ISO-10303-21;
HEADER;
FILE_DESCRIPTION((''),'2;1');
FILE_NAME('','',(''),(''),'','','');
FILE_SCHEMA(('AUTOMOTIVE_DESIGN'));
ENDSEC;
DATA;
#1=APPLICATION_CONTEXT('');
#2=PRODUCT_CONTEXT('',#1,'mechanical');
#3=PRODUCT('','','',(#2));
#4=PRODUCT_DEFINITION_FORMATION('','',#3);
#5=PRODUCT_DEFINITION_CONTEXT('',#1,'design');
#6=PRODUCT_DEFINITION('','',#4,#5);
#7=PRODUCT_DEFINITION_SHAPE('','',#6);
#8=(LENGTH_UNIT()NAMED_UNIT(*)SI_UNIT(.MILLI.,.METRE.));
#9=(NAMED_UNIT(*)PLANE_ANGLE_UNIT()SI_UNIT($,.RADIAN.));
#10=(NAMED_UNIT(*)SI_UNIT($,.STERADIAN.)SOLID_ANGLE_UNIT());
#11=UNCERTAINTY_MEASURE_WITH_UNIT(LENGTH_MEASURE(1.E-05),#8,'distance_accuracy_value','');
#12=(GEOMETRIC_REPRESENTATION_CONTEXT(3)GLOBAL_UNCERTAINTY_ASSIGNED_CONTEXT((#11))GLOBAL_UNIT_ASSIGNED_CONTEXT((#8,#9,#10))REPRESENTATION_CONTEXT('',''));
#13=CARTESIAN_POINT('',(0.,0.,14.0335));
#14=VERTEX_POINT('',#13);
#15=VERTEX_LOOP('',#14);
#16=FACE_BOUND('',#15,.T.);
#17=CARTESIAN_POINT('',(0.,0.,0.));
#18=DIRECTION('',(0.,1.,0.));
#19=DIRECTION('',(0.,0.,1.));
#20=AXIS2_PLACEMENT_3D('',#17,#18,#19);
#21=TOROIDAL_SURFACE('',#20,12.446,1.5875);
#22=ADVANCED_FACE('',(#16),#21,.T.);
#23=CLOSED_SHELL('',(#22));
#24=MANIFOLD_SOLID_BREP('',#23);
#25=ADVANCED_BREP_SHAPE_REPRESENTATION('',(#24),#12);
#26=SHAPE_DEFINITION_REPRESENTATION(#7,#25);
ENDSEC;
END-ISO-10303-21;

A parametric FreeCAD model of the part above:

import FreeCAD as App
import Part
import Sketcher
from FreeCAD import Vector
Q = App.Units.Quantity

doc = App.newDocument("Part")
body = doc.addObject("PartDesign::Body", "Body")

# Sketch on XY plane
sketch1 = body.newObject("Sketcher::SketchObject", "Sketch")
sketch1.AttachmentSupport = (doc.getObject("XY_Plane"), [""])
sketch1.MapMode = "FlatFace"
sketch1.addGeometry(Part.Circle(Vector(12.4, 0, 0), Vector(0, 0, 1), 1.6), False)
sketch1.addConstraint([
    Sketcher.Constraint("PointOnObject", 0, 3, -1),
    Sketcher.Constraint("Diameter", 0, Q("0.125 in")),
    Sketcher.Constraint("DistanceX", -1, 1, 0, 3, Q("0.49 in")),
])
revolution = body.newObject("PartDesign::Revolution", "Revolution")
revolution.Profile = sketch1
revolution.ReferenceAxis = (sketch1, ["V_Axis"])
revolution.Angle = 360

doc.recompute()
